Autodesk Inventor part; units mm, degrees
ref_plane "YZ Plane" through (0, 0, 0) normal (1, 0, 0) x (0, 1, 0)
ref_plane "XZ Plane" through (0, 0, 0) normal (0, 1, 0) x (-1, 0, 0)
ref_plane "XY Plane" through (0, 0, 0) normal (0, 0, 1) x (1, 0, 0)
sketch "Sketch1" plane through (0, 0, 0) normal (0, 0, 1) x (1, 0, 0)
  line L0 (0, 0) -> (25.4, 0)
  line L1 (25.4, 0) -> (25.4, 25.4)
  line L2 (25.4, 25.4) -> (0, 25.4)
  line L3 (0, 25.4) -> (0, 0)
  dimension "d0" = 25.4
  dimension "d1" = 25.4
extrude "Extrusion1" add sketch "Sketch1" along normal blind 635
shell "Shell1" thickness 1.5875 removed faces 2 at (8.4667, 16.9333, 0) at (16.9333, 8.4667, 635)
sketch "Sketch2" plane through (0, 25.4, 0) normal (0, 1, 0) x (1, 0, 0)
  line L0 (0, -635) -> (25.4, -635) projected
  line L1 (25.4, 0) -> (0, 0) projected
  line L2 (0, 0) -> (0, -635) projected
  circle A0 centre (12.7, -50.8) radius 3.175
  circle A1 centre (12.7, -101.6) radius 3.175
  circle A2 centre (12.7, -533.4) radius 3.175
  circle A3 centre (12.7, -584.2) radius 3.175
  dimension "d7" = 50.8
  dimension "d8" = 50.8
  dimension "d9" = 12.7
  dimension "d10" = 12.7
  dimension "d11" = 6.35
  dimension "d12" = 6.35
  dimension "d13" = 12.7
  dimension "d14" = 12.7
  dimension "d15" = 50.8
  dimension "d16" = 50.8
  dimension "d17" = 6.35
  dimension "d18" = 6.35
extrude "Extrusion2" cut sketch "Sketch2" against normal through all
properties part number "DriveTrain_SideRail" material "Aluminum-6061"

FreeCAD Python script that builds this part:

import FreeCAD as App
import Part
import Sketcher
Q = App.Units.Quantity


def faces_at(feature, points):
    """Names of the faces that lie closest to the given points."""
    faces = feature.Shape.Faces
    near = lambda p: min(range(len(faces)), key=lambda i: faces[i].distToShape(Part.Vertex(*p))[0])
    return sorted({f"Face{near(p) + 1}" for p in points})

doc = App.newDocument("Part")
body = doc.addObject("PartDesign::Body", "Body")

sketch1 = body.newObject("Sketcher::SketchObject", "Sketch")
sketch1.AttachmentSupport = (doc.getObject("XY_Plane"), [""])
sketch1.MapMode = "FlatFace"
sketch1.addGeometry(Part.LineSegment(App.Vector(0, 25.4, 0), App.Vector(0, 0, 0)), False)
sketch1.addGeometry(Part.LineSegment(App.Vector(0, 0, 0), App.Vector(25.4, 0, 0)), False)
sketch1.addGeometry(Part.LineSegment(App.Vector(25.4, 0, 0), App.Vector(25.4, 25.4, 0)), False)
sketch1.addGeometry(Part.LineSegment(App.Vector(25.4, 25.4, 0), App.Vector(0, 25.4, 0)), False)
sketch1.addConstraint(Sketcher.Constraint("Coincident", 0, 2, 1, 1))
sketch1.addConstraint(Sketcher.Constraint("Coincident", 1, 2, 2, 1))
sketch1.addConstraint(Sketcher.Constraint("Coincident", 2, 2, 3, 1))
sketch1.addConstraint(Sketcher.Constraint("Coincident", 3, 2, 0, 1))
sketch1.addConstraint(Sketcher.Constraint("Vertical", 0))
sketch1.addConstraint(Sketcher.Constraint("Horizontal", 1))
sketch1.addConstraint(Sketcher.Constraint("Vertical", 2))
sketch1.addConstraint(Sketcher.Constraint("Horizontal", 3))
sketch1.addConstraint(Sketcher.Constraint("Coincident", 0, 2, -1, 1))
sketch1.addConstraint(Sketcher.Constraint("Equal", 3, 0))
sketch1.addConstraint(Sketcher.Constraint("DistanceX", 1, 1, 1, 2, Q("1 in")))
pad1 = body.newObject("PartDesign::Pad", "Pad")
pad1.Profile = sketch1
pad1.Length = Q("25 in")
doc.recompute()

thickness = body.newObject("PartDesign::Thickness", "Thickness")
thickness.Base = (pad1, faces_at(pad1, [(8.467, 16.933, 0), (16.933, 8.467, 635)]))
thickness.Value = Q("0.0625 in")
thickness.Reversed = True
thickness.Join = "Intersection"

sketch2 = body.newObject("Sketcher::SketchObject", "Sketch001")
sketch2.AttachmentSupport = (doc.getObject("XZ_Plane"), [""])
sketch2.MapMode = "FlatFace"
sketch2.AttachmentOffset = App.Placement(App.Vector(0, 0, -1 * 25.4), App.Rotation())
sketch2.addGeometry(Part.Circle(App.Vector(12.7, 50.8, 0), App.Vector(0, 0, 1), 3.175), False)
sketch2.addGeometry(Part.Circle(App.Vector(12.7, 101.6, 0), App.Vector(0, 0, 1), 3.175), False)
sketch2.addGeometry(Part.Circle(App.Vector(12.7, 533.4, 0), App.Vector(0, 0, 1), 3.175), False)
sketch2.addGeometry(Part.Circle(App.Vector(12.7, 584.2, 0), App.Vector(0, 0, 1), 3.175), False)
sketch2.addConstraint(Sketcher.Constraint("Equal", 0, 1))
sketch2.addConstraint(Sketcher.Constraint("Equal", 1, 2))
sketch2.addConstraint(Sketcher.Constraint("Equal", 2, 3))
sketch2.addConstraint(Sketcher.Constraint("Vertical", 0, 3, 1, 3))
sketch2.addConstraint(Sketcher.Constraint("Vertical", 1, 3, 2, 3))
sketch2.addConstraint(Sketcher.Constraint("Vertical", 2, 3, 3, 3))
sketch2.addConstraint(Sketcher.Constraint("Diameter", 0, Q("0.25 in")))
sketch2.addConstraint(Sketcher.Constraint("DistanceY", -1, 1, 0, 3, Q("2 in")))
sketch2.addConstraint(Sketcher.Constraint("DistanceY", 0, 3, 1, 3, Q("2 in")))
sketch2.addConstraint(Sketcher.Constraint("DistanceY", 2, 3, 3, 3, Q("2 in")))
sketch2.addConstraint(Sketcher.Constraint("DistanceX", -1, 1, 0, 3, Q("0.5 in")))
sketch2.addConstraint(Sketcher.Constraint("DistanceY", -1, 1, 2, 3, Q("21 in")))
pocket1 = body.newObject("PartDesign::Pocket", "Pocket")
pocket1.Profile = sketch2
pocket1.Type = "ThroughAll"
pocket1.Reversed = True

doc.recompute()
